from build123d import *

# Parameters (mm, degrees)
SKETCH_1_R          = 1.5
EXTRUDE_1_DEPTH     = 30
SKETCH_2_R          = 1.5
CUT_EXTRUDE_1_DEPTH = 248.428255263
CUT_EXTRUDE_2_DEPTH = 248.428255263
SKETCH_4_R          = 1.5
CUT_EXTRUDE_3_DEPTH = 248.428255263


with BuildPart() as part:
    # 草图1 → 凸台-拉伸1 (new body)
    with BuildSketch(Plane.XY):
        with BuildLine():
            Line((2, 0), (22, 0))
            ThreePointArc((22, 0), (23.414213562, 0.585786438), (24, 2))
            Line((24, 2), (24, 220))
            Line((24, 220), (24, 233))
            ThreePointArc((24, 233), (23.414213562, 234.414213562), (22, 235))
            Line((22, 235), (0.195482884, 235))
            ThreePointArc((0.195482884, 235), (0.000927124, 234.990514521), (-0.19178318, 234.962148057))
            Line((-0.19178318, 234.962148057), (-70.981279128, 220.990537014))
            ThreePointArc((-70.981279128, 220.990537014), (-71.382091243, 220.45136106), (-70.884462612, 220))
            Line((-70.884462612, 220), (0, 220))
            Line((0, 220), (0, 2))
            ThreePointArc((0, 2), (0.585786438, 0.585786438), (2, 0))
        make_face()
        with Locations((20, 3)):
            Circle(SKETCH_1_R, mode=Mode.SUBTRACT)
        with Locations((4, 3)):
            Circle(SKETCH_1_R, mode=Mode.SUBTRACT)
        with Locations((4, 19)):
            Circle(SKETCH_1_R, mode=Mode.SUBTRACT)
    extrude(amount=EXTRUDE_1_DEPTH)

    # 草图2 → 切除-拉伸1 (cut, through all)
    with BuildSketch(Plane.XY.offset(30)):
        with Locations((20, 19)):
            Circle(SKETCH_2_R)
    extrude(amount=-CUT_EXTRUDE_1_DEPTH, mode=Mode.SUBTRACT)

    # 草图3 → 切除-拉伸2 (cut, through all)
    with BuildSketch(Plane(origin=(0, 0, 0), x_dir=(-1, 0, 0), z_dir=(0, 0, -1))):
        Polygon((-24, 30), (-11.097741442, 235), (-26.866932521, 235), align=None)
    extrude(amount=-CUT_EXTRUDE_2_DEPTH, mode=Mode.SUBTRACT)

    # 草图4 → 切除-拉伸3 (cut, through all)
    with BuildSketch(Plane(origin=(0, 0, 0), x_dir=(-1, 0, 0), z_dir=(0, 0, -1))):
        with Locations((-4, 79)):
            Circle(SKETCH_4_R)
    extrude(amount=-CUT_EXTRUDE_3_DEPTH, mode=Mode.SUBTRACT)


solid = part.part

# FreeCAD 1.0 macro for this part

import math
import FreeCAD as App
import Part
import Sketcher

V = App.Vector
Q = App.Units.Quantity


def add_polygon(sketch, points):
    """Adds a closed chain of lines whose ends are joined by coincident constraints."""
    first, n = sketch.GeometryCount, len(points)
    for a, b in zip(points, points[1:] + points[:1]):
        sketch.addGeometry(Part.LineSegment(App.Vector(*a, 0), App.Vector(*b, 0)), False)
    for i in range(n):
        sketch.addConstraint(Sketcher.Constraint("Coincident", first + i, 2, first + (i + 1) % n, 1))

doc = App.newDocument("Part")
params = doc.addObject("Spreadsheet::Sheet", "Params")
for row, (alias, value) in enumerate([
    ("sketch1_diameter", "3 mm"),
    ("sketch1_radius", "2 mm"),
    ("sketch1_radius2", "0.5 mm"),
    ("sketch1_width", "20 mm"),
    ("sketch1_height", "231 mm"),
    ("pad1_length", "30 mm"),
    ("sketch2_diameter", "3 mm"),
    ("sketch4_diameter", "3 mm"),
], start=1):
    params.set(f"A{row}", alias)
    params.set(f"B{row}", "=" + value)
    params.setAlias(f"B{row}", alias)

body = doc.addObject("PartDesign::Body", "Body")

# Sketch on XY plane
sketch1 = body.newObject("Sketcher::SketchObject", "Sketch")
sketch1.AttachmentSupport = (doc.getObject("XY_Plane"), [""])
sketch1.MapMode = "FlatFace"
sketch1.addGeometry([
    Part.LineSegment(V(2, 0, 0), V(22, 0, 0)),  # 0
    Part.ArcOfCircle(Part.Circle(V(22, 2, 0), V(0, 0, 1), 2), math.radians(-90), math.radians(0)),  # 1
    Part.LineSegment(V(24, 2, 0), V(24, 233, 0)),  # 2
    Part.ArcOfCircle(Part.Circle(V(22, 233, 0), V(0, 0, 1), 2), math.radians(0), math.radians(90)),  # 3
    Part.LineSegment(V(22, 235, 0), V(0.2, 235, 0)),  # 4
    Part.ArcOfCircle(Part.Circle(V(0.2, 233, 0), V(0, 0, 1), 2), math.radians(90), math.radians(101.16)),  # 5
    Part.LineSegment(V(-0.19, 234.96, 0), V(-70.98, 220.99, 0)),  # 6
    Part.ArcOfCircle(Part.Circle(V(-70.88, 220.5, 0), V(0, 0, 1), 0.5), math.radians(101), math.radians(270)),  # 7
    Part.LineSegment(V(-70.88, 220, 0), V(0, 220, 0)),  # 8
    Part.LineSegment(V(0, 220, 0), V(0, 2, 0)),  # 9
    Part.ArcOfCircle(Part.Circle(V(2, 2, 0), V(0, 0, 1), 2), math.radians(-180), math.radians(-90)),  # 10
    Part.Circle(V(4, 3, 0), V(0, 0, 1), 1.5),  # 11
    Part.Circle(V(20, 3, 0), V(0, 0, 1), 1.5),  # 12
    Part.Circle(V(4, 19, 0), V(0, 0, 1), 1.5),  # 13
], False)
sketch1.addConstraint([
    Sketcher.Constraint("Tangent", 0, 2, 1, 1),
    Sketcher.Constraint("Tangent", 1, 2, 2, 1),
    Sketcher.Constraint("Tangent", 2, 2, 3, 1),
    Sketcher.Constraint("Tangent", 3, 2, 4, 1),
    Sketcher.Constraint("Tangent", 4, 2, 5, 1),
    Sketcher.Constraint("Tangent", 5, 2, 6, 1),
    Sketcher.Constraint("Tangent", 6, 2, 7, 1),
    Sketcher.Constraint("Tangent", 7, 2, 8, 1),
    Sketcher.Constraint("Coincident", 8, 2, 9, 1),
    Sketcher.Constraint("Tangent", 9, 2, 10, 1),
    Sketcher.Constraint("Tangent", 10, 2, 0, 1),
    Sketcher.Constraint("Horizontal", 0),
    Sketcher.Constraint("Vertical", 2),
    Sketcher.Constraint("Horizontal", 4),
    Sketcher.Constraint("Horizontal", 8),
    Sketcher.Constraint("Vertical", 9),
    Sketcher.Constraint("Equal", 1, 3),
    Sketcher.Constraint("Equal", 3, 5),
    Sketcher.Constraint("Equal", 5, 10),
    Sketcher.Constraint("Equal", 11, 12),
    Sketcher.Constraint("Equal", 12, 13),
    Sketcher.Constraint("PointOnObject", 0, 2, -1),
    Sketcher.Constraint("PointOnObject", 8, 2, -2),
    Sketcher.Constraint("Horizontal", 11, 3, 12, 3),
    Sketcher.Constraint("Vertical", 11, 3, 13, 3),
    Sketcher.Constraint("Diameter", 11, Q("3 mm")),
    Sketcher.Constraint("Radius", 1, Q("2 mm")),
    Sketcher.Constraint("Radius", 7, Q("0.5 mm")),
    Sketcher.Constraint("DistanceX", 0, 1, 0, 2, Q("20 mm")),
    Sketcher.Constraint("DistanceY", 2, 1, 2, 2, Q("231 mm")),
    Sketcher.Constraint("DistanceY", 9, 2, 9, 1, Q("218 mm")),
    Sketcher.Constraint("DistanceX", -1, 1, 11, 3, Q("4 mm")),
    Sketcher.Constraint("DistanceY", -1, 1, 11, 3, Q("3 mm")),
    Sketcher.Constraint("DistanceX", -1, 1, 12, 3, Q("20 mm")),
    Sketcher.Constraint("DistanceY", -1, 1, 13, 3, Q("19 mm")),
    Sketcher.Constraint("Distance", 6, Q("72.155101 mm")),
    Sketcher.Constraint("DistanceX", 4, 2, 4, 1, Q("21.804517 mm")),
])
sketch1.setExpression("Constraints[25]", "Params.sketch1_diameter")
sketch1.setExpression("Constraints[26]", "Params.sketch1_radius")
sketch1.setExpression("Constraints[27]", "Params.sketch1_radius2")
sketch1.setExpression("Constraints[28]", "Params.sketch1_width")
sketch1.setExpression("Constraints[29]", "Params.sketch1_height")
pad1 = body.newObject("PartDesign::Pad", "Pad")
pad1.Profile = sketch1
pad1.setExpression("Length", "Params.pad1_length")

# Sketch on XY plane
sketch2 = body.newObject("Sketcher::SketchObject", "Sketch001")
sketch2.AttachmentSupport = (doc.getObject("XY_Plane"), [""])
sketch2.MapMode = "FlatFace"
sketch2.AttachmentOffset = App.Placement(V(0, 0, 30), App.Rotation())
sketch2.addGeometry(Part.Circle(V(20, 19, 0), V(0, 0, 1), 1.5), False)
sketch2.addConstraint([
    Sketcher.Constraint("Diameter", 0, Q("3 mm")),
    Sketcher.Constraint("DistanceX", -1, 1, 0, 3, Q("20 mm")),
    Sketcher.Constraint("DistanceY", -1, 1, 0, 3, Q("19 mm")),
])
sketch2.setExpression("Constraints[0]", "Params.sketch2_diameter")
pocket1 = body.newObject("PartDesign::Pocket", "Pocket")
pocket1.Profile = sketch2
pocket1.Type = "ThroughAll"

# Sketch on XY plane
sketch3 = body.newObject("Sketcher::SketchObject", "Sketch002")
sketch3.AttachmentSupport = (doc.getObject("XY_Plane"), [""])
sketch3.MapMode = "FlatFace"
add_polygon(sketch3, [(24, 30), (11, 235), (27, 235)])  # lines 0-2
sketch3.addConstraint([
    Sketcher.Constraint("Horizontal", 1),
    Sketcher.Constraint("DistanceY", -1, 1, 0, 2, Q("235 mm")),
    Sketcher.Constraint("DistanceX", -1, 1, 2, 2, Q("24 mm")),
    Sketcher.Constraint("DistanceY", -1, 1, 2, 2, Q("30 mm")),
    Sketcher.Constraint("DistanceX", 1, 1, 1, 2, Q("15.769191 mm")),
    Sketcher.Constraint("Distance", 0, Q("205.405619 mm")),
])
pocket2 = body.newObject("PartDesign::Pocket", "Pocket001")
pocket2.Profile = sketch3
pocket2.Type = "ThroughAll"
pocket2.Reversed = True

# Sketch on XY plane
sketch4 = body.newObject("Sketcher::SketchObject", "Sketch003")
sketch4.AttachmentSupport = (doc.getObject("XY_Plane"), [""])
sketch4.MapMode = "FlatFace"
sketch4.addGeometry(Part.Circle(V(4, 79, 0), V(0, 0, 1), 1.5), False)
sketch4.addConstraint([
    Sketcher.Constraint("Diameter", 0, Q("3 mm")),
    Sketcher.Constraint("DistanceX", -1, 1, 0, 3, Q("4 mm")),
    Sketcher.Constraint("DistanceY", -1, 1, 0, 3, Q("79 mm")),
])
sketch4.setExpression("Constraints[0]", "Params.sketch4_diameter")
pocket3 = body.newObject("PartDesign::Pocket", "Pocket002")
pocket3.Profile = sketch4
pocket3.Type = "ThroughAll"
pocket3.Reversed = True

doc.recompute()
